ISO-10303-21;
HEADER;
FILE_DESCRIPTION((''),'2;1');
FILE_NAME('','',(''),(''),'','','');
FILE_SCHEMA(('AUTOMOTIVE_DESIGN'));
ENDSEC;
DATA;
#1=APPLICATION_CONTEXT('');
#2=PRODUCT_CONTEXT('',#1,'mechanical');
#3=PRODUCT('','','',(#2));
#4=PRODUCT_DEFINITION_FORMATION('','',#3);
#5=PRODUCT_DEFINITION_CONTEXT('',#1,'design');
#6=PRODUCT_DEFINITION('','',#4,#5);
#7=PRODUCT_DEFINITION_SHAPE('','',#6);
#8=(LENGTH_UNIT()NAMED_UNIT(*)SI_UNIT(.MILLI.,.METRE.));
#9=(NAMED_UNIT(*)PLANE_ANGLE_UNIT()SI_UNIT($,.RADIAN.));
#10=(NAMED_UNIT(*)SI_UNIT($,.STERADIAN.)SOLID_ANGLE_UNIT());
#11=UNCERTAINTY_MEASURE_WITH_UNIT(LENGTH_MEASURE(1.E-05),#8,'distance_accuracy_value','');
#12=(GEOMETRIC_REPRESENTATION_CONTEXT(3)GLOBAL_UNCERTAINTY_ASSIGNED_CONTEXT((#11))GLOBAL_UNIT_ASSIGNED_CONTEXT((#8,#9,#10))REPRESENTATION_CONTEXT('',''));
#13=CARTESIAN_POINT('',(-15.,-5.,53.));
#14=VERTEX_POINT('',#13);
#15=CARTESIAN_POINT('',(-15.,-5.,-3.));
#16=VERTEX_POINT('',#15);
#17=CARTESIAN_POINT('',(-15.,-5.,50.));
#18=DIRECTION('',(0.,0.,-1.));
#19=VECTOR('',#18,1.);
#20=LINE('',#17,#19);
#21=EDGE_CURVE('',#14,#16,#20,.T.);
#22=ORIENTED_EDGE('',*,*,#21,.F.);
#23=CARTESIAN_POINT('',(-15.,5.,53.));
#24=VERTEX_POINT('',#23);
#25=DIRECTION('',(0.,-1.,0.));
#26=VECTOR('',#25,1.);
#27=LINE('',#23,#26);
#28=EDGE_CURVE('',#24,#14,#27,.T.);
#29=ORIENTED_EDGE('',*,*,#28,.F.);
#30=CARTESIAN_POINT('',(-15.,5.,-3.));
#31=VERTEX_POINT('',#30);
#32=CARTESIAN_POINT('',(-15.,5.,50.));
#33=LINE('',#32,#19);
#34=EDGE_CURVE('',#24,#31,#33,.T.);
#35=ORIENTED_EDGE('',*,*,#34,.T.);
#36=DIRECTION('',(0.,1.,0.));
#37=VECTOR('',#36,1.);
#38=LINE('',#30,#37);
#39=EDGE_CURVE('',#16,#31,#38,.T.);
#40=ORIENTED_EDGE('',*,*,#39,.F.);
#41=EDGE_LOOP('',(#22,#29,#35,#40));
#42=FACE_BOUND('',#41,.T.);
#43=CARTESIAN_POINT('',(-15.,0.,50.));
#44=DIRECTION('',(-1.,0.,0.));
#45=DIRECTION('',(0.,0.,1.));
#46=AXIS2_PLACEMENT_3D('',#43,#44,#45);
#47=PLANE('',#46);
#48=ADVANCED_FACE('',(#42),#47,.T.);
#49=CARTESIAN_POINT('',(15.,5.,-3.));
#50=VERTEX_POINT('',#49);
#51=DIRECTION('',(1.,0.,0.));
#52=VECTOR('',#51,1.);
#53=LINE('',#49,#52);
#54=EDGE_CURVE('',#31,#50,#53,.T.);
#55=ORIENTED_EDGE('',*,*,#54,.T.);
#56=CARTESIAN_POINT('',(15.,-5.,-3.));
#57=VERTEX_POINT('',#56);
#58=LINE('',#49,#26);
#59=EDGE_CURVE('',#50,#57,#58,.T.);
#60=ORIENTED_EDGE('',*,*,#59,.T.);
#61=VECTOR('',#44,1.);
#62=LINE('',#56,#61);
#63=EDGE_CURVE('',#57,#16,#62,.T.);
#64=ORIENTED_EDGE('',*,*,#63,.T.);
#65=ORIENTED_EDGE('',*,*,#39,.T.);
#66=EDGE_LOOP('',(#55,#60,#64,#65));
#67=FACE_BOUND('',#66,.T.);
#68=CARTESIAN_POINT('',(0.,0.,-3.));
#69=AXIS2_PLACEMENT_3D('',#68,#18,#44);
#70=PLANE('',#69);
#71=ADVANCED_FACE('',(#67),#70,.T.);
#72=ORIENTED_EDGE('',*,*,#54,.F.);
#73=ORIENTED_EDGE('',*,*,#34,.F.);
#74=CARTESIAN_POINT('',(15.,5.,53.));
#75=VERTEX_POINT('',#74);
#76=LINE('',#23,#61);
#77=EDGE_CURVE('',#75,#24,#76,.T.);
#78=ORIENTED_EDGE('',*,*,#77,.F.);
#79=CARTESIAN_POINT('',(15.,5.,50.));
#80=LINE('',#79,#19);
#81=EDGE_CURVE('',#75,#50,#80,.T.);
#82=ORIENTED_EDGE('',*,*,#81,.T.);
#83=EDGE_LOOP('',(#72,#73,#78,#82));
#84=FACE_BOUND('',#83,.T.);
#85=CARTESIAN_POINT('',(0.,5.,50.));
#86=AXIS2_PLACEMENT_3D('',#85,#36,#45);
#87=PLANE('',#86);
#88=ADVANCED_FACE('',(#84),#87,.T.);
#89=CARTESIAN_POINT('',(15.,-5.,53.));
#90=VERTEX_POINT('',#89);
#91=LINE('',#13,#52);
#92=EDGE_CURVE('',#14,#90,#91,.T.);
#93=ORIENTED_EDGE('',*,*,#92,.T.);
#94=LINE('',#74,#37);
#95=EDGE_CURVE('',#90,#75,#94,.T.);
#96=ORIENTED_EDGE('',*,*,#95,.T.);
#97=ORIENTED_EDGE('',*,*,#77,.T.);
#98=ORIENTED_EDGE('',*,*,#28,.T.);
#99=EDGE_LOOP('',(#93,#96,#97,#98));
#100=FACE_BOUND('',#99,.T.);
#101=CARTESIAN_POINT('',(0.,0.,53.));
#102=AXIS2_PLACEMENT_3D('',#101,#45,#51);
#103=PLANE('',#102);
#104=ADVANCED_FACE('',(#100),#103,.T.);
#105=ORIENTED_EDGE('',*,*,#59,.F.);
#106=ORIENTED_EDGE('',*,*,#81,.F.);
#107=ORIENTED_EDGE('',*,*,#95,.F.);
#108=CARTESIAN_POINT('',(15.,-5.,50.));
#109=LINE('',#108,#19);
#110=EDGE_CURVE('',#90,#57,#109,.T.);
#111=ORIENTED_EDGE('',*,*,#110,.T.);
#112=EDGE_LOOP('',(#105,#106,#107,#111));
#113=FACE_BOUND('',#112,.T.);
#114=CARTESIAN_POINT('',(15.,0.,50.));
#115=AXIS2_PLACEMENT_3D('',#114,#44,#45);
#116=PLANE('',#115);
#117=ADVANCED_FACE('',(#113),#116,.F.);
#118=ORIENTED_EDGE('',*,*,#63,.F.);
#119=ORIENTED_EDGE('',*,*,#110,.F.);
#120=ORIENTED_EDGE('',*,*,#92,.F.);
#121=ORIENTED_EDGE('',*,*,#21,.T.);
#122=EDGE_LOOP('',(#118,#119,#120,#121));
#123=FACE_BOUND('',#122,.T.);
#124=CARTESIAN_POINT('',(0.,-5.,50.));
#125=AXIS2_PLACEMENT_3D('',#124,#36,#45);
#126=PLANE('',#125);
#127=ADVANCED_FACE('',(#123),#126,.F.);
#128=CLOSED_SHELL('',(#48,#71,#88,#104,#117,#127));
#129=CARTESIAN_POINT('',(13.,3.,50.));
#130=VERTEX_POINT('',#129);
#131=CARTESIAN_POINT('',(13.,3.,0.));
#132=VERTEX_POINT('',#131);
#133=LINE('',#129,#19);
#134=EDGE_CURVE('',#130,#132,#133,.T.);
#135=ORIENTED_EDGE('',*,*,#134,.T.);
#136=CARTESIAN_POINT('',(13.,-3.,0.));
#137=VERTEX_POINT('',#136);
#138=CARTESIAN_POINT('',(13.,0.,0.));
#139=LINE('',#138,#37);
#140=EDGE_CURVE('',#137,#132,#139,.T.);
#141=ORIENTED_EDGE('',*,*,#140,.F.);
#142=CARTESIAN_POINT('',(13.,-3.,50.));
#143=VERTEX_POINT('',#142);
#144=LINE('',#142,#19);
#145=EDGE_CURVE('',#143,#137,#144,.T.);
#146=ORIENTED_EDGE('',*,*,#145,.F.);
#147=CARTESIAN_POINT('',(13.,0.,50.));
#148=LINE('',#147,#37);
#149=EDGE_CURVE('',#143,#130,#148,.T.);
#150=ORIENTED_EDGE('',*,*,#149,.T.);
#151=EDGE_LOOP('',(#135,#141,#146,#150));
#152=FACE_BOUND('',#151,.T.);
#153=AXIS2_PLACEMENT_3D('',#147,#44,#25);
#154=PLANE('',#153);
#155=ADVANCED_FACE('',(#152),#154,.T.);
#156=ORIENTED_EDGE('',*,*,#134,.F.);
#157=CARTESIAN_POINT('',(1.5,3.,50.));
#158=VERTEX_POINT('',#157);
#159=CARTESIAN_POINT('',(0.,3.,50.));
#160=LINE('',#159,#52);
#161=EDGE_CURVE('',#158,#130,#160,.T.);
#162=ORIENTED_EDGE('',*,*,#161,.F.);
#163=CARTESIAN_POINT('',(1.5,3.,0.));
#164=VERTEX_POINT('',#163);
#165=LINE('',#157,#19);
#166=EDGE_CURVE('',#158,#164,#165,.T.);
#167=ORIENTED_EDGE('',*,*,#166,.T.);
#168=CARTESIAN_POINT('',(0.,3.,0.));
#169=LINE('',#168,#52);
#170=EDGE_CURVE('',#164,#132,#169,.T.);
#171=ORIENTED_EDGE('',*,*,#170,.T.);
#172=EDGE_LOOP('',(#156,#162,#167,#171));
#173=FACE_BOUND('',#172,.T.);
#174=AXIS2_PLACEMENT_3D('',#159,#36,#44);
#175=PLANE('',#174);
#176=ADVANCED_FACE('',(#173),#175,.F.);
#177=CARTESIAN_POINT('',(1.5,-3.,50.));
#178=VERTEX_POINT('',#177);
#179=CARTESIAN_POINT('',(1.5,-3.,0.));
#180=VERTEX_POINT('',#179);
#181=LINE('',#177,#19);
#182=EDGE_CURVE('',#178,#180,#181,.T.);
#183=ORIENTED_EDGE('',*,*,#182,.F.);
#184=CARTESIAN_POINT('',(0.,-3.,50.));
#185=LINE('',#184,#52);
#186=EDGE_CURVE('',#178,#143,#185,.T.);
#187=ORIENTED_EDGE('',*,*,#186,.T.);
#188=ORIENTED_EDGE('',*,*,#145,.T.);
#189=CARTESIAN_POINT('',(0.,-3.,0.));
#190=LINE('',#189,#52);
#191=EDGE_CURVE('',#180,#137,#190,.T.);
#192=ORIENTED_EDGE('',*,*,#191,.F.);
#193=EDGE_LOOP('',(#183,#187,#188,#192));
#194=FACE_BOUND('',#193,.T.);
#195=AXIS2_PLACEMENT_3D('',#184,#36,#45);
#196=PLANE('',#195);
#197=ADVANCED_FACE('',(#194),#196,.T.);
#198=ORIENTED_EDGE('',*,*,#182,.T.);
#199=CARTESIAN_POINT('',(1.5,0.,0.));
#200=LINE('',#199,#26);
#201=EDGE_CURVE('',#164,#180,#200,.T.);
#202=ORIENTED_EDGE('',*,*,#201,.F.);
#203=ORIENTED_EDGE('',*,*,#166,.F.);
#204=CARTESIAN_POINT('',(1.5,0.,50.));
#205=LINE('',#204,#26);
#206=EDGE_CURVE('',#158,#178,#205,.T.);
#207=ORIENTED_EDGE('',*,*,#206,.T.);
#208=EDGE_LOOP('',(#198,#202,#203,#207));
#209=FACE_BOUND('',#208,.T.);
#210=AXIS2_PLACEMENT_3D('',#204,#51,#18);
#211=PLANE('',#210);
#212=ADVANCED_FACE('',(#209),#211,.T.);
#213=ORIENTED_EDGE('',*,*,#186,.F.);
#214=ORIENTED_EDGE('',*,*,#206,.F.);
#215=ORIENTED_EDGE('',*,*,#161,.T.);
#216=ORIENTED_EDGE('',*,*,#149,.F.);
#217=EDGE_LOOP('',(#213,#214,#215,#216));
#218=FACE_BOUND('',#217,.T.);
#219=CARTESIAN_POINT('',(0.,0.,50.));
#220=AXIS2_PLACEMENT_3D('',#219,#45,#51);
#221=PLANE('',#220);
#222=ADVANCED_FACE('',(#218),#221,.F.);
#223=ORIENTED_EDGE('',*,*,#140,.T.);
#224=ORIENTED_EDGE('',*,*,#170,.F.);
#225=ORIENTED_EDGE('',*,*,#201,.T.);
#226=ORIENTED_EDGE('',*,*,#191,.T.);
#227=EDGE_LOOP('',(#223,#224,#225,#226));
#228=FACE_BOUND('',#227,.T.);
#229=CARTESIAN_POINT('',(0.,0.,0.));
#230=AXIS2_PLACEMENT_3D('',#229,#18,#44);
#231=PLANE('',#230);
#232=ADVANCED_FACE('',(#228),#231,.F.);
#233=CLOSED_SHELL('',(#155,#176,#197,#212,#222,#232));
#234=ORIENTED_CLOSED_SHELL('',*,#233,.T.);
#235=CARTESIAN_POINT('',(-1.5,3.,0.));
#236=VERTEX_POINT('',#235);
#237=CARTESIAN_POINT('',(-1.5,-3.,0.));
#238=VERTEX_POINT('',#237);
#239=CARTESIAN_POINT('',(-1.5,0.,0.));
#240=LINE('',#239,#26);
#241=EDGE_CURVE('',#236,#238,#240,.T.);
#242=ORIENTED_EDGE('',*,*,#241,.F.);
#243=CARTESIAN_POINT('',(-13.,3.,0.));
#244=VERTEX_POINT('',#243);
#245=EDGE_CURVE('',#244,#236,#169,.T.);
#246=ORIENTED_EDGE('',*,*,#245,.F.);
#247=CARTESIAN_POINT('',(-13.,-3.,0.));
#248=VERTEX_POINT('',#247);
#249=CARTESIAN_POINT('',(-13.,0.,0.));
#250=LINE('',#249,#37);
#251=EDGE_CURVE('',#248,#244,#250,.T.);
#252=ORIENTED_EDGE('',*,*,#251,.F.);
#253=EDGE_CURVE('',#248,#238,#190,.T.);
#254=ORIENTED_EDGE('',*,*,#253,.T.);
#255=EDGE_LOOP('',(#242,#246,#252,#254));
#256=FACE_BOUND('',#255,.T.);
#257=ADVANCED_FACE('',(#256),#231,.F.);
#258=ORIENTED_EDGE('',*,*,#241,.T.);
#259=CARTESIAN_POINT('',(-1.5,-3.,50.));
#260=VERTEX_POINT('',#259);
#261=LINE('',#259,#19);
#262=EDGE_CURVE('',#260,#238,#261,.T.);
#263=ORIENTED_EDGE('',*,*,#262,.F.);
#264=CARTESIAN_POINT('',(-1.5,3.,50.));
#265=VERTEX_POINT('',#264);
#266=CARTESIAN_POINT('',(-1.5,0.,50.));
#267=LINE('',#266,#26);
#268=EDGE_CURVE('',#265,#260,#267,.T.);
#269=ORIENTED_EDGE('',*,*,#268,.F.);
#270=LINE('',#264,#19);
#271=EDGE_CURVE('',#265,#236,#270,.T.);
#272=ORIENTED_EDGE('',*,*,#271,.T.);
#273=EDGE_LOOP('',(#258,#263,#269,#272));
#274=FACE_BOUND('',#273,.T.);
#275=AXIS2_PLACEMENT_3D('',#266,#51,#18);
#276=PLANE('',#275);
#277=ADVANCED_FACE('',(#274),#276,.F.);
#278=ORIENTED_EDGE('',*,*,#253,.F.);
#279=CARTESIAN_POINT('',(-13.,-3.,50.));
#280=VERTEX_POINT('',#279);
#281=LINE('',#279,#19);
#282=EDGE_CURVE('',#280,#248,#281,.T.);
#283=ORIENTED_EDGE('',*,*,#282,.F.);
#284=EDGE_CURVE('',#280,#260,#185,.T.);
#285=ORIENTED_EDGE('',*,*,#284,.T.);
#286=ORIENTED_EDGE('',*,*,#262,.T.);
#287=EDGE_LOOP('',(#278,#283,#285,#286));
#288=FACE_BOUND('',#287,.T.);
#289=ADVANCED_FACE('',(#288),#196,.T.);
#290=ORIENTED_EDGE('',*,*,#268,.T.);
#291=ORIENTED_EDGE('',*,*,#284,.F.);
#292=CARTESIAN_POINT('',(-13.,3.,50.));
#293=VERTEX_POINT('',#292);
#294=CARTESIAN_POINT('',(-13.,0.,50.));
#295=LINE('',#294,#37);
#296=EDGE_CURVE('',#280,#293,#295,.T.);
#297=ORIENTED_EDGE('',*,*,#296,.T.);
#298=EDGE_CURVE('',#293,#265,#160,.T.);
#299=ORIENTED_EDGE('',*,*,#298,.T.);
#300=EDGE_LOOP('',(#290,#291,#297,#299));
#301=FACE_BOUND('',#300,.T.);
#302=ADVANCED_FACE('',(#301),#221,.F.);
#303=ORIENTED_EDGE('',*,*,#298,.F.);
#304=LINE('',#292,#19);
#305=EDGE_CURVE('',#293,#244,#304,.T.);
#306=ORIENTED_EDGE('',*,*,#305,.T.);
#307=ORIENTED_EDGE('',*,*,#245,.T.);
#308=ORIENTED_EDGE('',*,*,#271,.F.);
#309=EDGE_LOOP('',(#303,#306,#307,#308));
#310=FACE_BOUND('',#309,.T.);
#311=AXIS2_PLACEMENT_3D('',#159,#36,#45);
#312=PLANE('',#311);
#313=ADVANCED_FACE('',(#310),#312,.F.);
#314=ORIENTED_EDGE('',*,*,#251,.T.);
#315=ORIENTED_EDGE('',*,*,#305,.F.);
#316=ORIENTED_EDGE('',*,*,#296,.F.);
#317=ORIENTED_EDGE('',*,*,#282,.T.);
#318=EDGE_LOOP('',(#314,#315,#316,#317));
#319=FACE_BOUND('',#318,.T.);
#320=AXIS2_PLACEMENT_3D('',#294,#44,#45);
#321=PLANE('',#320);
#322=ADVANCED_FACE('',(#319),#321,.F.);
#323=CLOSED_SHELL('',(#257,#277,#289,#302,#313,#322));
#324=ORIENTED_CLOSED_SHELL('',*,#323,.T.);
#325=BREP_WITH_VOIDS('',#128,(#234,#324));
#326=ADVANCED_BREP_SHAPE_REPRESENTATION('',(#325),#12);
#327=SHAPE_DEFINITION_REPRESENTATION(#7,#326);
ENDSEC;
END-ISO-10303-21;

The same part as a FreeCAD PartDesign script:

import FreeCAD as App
import Part
import Sketcher
Q = App.Units.Quantity


def add_polygon(sketch, points):
    """Adds a closed chain of lines whose ends are joined by coincident constraints."""
    first, n = sketch.GeometryCount, len(points)
    for a, b in zip(points, points[1:] + points[:1]):
        sketch.addGeometry(Part.LineSegment(App.Vector(*a, 0), App.Vector(*b, 0)), False)
    for i in range(n):
        sketch.addConstraint(Sketcher.Constraint("Coincident", first + i, 2, first + (i + 1) % n, 1))

doc = App.newDocument("Part")
body = doc.addObject("PartDesign::Body", "Body")

# Sketch on XY plane
sketch1 = body.newObject("Sketcher::SketchObject", "Sketch")
sketch1.AttachmentSupport = (doc.getObject("XY_Plane"), [""])
sketch1.MapMode = "FlatFace"
add_polygon(sketch1, [(-15, 5), (-15, -5), (15, -5), (15, 5)])  # lines 0-3
add_polygon(sketch1, [(-1.5, -3), (-13, -3), (-13, 3), (-1.5, 3)])  # lines 4-7
add_polygon(sketch1, [(1.5, -3), (1.5, 3), (13, 3), (13, -3)])  # lines 8-11
sketch1.addConstraint([
    Sketcher.Constraint("Vertical", 0),
    Sketcher.Constraint("Horizontal", 1),
    Sketcher.Constraint("Vertical", 2),
    Sketcher.Constraint("Horizontal", 3),
    Sketcher.Constraint("Horizontal", 4),
    Sketcher.Constraint("Vertical", 5),
    Sketcher.Constraint("Horizontal", 6),
    Sketcher.Constraint("Vertical", 7),
    Sketcher.Constraint("Vertical", 8),
    Sketcher.Constraint("Horizontal", 9),
    Sketcher.Constraint("Vertical", 10),
    Sketcher.Constraint("Horizontal", 11),
    Sketcher.Constraint("Symmetric", 0, 2, 2, 2, -1, 1),
    Sketcher.Constraint("Symmetric", 7, 2, 8, 2, -1, 1),
    Sketcher.Constraint("Symmetric", 5, 2, 10, 2, -1, 1),
    Sketcher.Constraint("Horizontal", 6, 2, 8, 2),
    Sketcher.Constraint("DistanceX", 1, 1, 1, 2, Q("30 mm")),
    Sketcher.Constraint("DistanceY", 0, 2, 0, 1, Q("10 mm")),
    Sketcher.Constraint("DistanceY", 5, 1, 5, 2, Q("6 mm")),
    Sketcher.Constraint("DistanceX", 4, 2, 4, 1, Q("11.5 mm")),
    Sketcher.Constraint("DistanceX", 4, 2, -1, 1, Q("13 mm")),
])
pad1 = body.newObject("PartDesign::Pad", "Pad")
pad1.Profile = sketch1
pad1.Length = 50

# Sketch on XY plane
sketch2 = body.newObject("Sketcher::SketchObject", "Sketch001")
sketch2.AttachmentSupport = (doc.getObject("XY_Plane"), [""])
sketch2.MapMode = "FlatFace"
add_polygon(sketch2, [(15, 5), (15, -5), (-15, -5), (-15, 5)])  # lines 0-3
sketch2.addConstraint([
    Sketcher.Constraint("Vertical", 0),
    Sketcher.Constraint("Horizontal", 1),
    Sketcher.Constraint("Vertical", 2),
    Sketcher.Constraint("Horizontal", 3),
    Sketcher.Constraint("Symmetric", 0, 2, 2, 2, -1, 1),
    Sketcher.Constraint("DistanceX", 1, 2, 1, 1, Q("30 mm")),
    Sketcher.Constraint("DistanceY", 0, 2, 0, 1, Q("10 mm")),
])
pad2 = body.newObject("PartDesign::Pad", "Pad001")
pad2.Profile = sketch2
pad2.Length = 3
pad2.Reversed = True

# Sketch on XY plane
sketch3 = body.newObject("Sketcher::SketchObject", "Sketch002")
sketch3.AttachmentSupport = (doc.getObject("XY_Plane"), [""])
sketch3.MapMode = "FlatFace"
sketch3.AttachmentOffset = App.Placement(App.Vector(0, 0, 50), App.Rotation())
add_polygon(sketch3, [(-15, 5), (-15, -5), (15, -5), (15, 5)])  # lines 0-3
sketch3.addConstraint([
    Sketcher.Constraint("Vertical", 0),
    Sketcher.Constraint("Horizontal", 1),
    Sketcher.Constraint("Vertical", 2),
    Sketcher.Constraint("Horizontal", 3),
    Sketcher.Constraint("Symmetric", 0, 2, 2, 2, -1, 1),
    Sketcher.Constraint("DistanceX", 1, 1, 1, 2, Q("30 mm")),
    Sketcher.Constraint("DistanceY", 0, 2, 0, 1, Q("10 mm")),
])
pad3 = body.newObject("PartDesign::Pad", "Pad002")
pad3.Profile = sketch3
pad3.Length = 3

doc.recompute()
